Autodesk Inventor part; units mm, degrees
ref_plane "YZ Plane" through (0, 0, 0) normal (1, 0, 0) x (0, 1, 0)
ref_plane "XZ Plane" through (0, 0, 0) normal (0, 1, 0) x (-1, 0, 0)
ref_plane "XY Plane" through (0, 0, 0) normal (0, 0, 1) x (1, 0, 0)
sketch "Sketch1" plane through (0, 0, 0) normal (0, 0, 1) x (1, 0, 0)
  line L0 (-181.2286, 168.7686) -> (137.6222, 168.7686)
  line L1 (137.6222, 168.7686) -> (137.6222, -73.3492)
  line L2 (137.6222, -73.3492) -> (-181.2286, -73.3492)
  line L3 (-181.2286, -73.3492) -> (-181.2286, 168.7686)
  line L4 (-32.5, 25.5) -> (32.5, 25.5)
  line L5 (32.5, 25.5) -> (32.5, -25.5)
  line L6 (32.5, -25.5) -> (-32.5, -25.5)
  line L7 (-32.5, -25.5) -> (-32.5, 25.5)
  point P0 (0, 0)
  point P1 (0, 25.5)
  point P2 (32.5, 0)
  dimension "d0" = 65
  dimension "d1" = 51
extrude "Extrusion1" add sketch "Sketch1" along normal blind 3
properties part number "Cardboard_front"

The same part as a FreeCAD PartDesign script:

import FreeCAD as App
import Part
import Sketcher

doc = App.newDocument("Part")
params = doc.addObject("Spreadsheet::Sheet", "Params")
for row, (alias, value) in enumerate([
    ("sketch1_width", "65 mm"),
    ("sketch1_height", "51 mm"),
    ("pad1_length", "3 mm"),
], start=1):
    params.set(f"A{row}", alias)
    params.set(f"B{row}", "=" + value)
    params.setAlias(f"B{row}", alias)

body = doc.addObject("PartDesign::Body", "Body")

sketch1 = doc.addObject("Sketcher::SketchObject", "Sketch")
body.addObject(sketch1)
sketch1.AttachmentSupport = (doc.XY_Plane, [""])
sketch1.MapMode = "FlatFace"
sketch1.addGeometry([
    Part.LineSegment(App.Vector(138, 169, 0), App.Vector(-181, 169, 0)),
    Part.LineSegment(App.Vector(-181, 169, 0), App.Vector(-181, -73, 0)),
    Part.LineSegment(App.Vector(-181, -73, 0), App.Vector(138, -73, 0)),
    Part.LineSegment(App.Vector(138, -73, 0), App.Vector(138, 169, 0)),
    Part.LineSegment(App.Vector(-32, -26, 0), App.Vector(-32, 26, 0)),
    Part.LineSegment(App.Vector(-32, 26, 0), App.Vector(32, 26, 0)),
    Part.LineSegment(App.Vector(32, 26, 0), App.Vector(32, -26, 0)),
    Part.LineSegment(App.Vector(32, -26, 0), App.Vector(-32, -26, 0)),
], False)
sketch1.addConstraint([
    Sketcher.Constraint("Coincident", 0, 2, 1, 1),
    Sketcher.Constraint("Coincident", 1, 2, 2, 1),
    Sketcher.Constraint("Coincident", 2, 2, 3, 1),
    Sketcher.Constraint("Coincident", 3, 2, 0, 1),
    Sketcher.Constraint("Coincident", 4, 2, 5, 1),
    Sketcher.Constraint("Coincident", 5, 2, 6, 1),
    Sketcher.Constraint("Coincident", 6, 2, 7, 1),
    Sketcher.Constraint("Coincident", 7, 2, 4, 1),
    Sketcher.Constraint("Horizontal", 0),
    Sketcher.Constraint("Vertical", 1),
    Sketcher.Constraint("Horizontal", 2),
    Sketcher.Constraint("Vertical", 3),
    Sketcher.Constraint("Vertical", 4),
    Sketcher.Constraint("Horizontal", 5),
    Sketcher.Constraint("Vertical", 6),
    Sketcher.Constraint("Horizontal", 7),
    Sketcher.Constraint("Symmetric", 4, 2, 6, 2, -1, 1),
    Sketcher.Constraint("DistanceX", 5, 1, 5, 2, 65.0),
    Sketcher.Constraint("DistanceY", 4, 1, 4, 2, 51.0),
    Sketcher.Constraint("DistanceX", 0, 2, 0, 1, 318.8508),
    Sketcher.Constraint("DistanceY", 1, 2, 1, 1, 242.1178),
    Sketcher.Constraint("DistanceX", 0, 2, -1, 1, 181.2286),
    Sketcher.Constraint("DistanceY", -1, 1, 0, 2, 168.7686),
])
sketch1.setExpression("Constraints[17]", "Params.sketch1_width")
sketch1.setExpression("Constraints[18]", "Params.sketch1_height")
pad1 = doc.addObject("PartDesign::Pad", "Pad")
body.addObject(pad1)
pad1.Profile = sketch1
pad1.setExpression("Length", "Params.pad1_length")

doc.recompute()
